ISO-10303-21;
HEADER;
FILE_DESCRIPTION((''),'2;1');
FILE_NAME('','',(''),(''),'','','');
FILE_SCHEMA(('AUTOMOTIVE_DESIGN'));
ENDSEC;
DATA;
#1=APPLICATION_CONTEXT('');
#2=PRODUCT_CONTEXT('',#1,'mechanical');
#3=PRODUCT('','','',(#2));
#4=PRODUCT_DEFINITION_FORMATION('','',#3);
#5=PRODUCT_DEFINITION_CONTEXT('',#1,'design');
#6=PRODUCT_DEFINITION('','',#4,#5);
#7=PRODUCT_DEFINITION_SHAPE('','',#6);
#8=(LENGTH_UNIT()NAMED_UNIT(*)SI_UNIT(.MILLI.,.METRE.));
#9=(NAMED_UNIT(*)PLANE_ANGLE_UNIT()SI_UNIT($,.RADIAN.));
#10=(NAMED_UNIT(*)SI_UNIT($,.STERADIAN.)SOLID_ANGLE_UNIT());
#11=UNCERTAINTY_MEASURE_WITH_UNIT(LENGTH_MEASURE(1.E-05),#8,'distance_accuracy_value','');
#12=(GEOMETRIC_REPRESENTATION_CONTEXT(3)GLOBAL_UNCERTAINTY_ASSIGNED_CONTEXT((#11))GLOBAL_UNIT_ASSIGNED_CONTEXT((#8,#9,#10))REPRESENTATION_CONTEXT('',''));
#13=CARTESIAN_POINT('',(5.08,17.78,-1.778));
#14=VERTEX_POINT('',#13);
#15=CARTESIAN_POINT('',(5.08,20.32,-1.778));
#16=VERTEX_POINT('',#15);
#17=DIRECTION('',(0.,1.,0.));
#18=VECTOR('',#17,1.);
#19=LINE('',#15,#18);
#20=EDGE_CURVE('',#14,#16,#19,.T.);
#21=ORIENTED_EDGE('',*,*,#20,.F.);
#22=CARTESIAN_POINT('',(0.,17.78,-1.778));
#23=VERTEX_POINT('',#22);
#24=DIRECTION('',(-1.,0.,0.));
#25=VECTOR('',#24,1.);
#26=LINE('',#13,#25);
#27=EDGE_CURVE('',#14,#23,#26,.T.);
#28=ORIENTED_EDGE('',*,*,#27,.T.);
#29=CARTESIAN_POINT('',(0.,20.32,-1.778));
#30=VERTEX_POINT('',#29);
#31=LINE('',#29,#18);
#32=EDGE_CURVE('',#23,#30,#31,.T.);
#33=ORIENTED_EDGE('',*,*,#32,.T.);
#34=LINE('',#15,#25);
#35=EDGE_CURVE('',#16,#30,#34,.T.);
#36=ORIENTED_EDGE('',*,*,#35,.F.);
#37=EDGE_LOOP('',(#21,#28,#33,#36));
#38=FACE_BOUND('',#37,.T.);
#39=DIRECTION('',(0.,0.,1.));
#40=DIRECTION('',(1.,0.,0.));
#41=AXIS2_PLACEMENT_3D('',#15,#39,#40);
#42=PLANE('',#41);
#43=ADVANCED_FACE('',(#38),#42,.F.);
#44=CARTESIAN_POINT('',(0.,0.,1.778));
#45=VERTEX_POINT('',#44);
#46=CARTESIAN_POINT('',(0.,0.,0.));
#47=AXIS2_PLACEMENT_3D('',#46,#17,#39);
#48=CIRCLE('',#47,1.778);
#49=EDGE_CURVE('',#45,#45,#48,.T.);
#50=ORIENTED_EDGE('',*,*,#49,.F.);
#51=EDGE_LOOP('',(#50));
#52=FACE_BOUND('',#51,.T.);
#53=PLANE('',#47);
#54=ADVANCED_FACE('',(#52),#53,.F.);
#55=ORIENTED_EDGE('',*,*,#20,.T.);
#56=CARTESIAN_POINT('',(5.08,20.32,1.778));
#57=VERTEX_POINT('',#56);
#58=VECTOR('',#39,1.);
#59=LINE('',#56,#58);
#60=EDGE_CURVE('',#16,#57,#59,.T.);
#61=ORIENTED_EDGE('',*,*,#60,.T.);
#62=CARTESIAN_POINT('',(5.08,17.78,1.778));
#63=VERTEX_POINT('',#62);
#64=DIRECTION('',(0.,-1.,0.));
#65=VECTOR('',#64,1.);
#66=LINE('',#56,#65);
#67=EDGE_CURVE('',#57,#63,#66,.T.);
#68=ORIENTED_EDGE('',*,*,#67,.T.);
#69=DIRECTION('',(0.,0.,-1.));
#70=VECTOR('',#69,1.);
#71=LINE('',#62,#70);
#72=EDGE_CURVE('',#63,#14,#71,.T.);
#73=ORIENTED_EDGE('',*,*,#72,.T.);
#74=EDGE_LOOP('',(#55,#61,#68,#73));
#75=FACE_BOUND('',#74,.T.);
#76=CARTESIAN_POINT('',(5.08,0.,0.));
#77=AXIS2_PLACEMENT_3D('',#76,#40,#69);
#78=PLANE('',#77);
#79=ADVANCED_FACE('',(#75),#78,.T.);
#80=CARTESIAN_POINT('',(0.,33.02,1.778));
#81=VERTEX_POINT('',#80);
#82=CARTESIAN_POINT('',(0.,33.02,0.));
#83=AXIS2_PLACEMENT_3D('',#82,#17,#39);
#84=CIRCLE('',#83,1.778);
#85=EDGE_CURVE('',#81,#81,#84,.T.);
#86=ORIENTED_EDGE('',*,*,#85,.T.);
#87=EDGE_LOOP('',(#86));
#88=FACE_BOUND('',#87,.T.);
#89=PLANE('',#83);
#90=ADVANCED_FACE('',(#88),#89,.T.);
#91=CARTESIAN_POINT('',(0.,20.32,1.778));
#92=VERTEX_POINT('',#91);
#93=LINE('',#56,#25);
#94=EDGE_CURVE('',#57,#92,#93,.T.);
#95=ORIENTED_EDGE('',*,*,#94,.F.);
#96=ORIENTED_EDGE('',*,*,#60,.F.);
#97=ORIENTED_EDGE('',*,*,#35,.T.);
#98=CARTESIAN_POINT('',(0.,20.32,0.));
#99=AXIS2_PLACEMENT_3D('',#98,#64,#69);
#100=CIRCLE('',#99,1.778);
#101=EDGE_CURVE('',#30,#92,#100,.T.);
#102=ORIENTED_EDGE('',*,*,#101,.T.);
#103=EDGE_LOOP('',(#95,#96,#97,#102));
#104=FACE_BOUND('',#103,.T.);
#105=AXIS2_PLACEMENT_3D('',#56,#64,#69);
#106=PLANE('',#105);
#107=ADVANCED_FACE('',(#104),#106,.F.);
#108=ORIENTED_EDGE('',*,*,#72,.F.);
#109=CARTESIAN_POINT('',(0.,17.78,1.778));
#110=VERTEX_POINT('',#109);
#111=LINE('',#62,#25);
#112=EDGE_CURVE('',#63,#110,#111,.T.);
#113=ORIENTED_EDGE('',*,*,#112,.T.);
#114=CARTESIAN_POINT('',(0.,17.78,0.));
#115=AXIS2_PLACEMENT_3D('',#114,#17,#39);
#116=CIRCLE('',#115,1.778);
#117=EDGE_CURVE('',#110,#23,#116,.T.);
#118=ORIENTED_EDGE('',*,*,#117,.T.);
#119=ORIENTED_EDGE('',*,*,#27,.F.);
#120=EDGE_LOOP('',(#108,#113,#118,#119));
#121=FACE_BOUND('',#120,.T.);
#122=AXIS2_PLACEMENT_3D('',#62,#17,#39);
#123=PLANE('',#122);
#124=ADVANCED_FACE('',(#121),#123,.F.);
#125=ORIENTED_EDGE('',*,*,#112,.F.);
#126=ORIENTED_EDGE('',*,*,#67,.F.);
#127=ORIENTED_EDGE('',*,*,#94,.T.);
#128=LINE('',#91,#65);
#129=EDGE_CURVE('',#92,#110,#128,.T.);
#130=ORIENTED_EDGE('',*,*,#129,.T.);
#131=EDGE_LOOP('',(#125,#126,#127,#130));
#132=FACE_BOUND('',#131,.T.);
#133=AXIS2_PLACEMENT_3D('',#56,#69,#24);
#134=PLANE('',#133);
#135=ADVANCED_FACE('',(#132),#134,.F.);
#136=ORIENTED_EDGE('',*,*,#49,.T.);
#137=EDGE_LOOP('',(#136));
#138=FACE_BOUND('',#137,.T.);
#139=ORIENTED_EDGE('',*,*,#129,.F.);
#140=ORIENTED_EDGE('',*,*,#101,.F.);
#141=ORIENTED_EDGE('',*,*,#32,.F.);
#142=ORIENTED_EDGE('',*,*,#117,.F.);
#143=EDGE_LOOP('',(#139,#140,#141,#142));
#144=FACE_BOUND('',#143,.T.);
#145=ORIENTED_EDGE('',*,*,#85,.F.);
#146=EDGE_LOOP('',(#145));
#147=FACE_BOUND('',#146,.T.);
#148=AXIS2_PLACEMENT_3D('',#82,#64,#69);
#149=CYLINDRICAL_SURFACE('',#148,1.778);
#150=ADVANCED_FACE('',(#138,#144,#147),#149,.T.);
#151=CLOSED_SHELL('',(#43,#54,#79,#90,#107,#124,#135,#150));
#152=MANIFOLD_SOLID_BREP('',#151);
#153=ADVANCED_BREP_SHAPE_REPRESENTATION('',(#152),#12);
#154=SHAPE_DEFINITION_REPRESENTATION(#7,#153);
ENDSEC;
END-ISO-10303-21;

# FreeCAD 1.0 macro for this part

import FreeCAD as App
import Part
import Sketcher
Q = App.Units.Quantity


def add_polygon(sketch, points):
    """Adds a closed chain of lines whose ends are joined by coincident constraints."""
    first, n = sketch.GeometryCount, len(points)
    for a, b in zip(points, points[1:] + points[:1]):
        sketch.addGeometry(Part.LineSegment(App.Vector(*a, 0), App.Vector(*b, 0)), False)
    for i in range(n):
        sketch.addConstraint(Sketcher.Constraint("Coincident", first + i, 2, first + (i + 1) % n, 1))

doc = App.newDocument("Part")
body = doc.addObject("PartDesign::Body", "Body")

sketch1 = body.newObject("Sketcher::SketchObject", "Sketch")
sketch1.AttachmentSupport = (doc.getObject("XZ_Plane"), [""])
sketch1.MapMode = "FlatFace"
sketch1.addGeometry(Part.Circle(App.Vector(0, 0, 0), App.Vector(0, 0, 1), 1.8), False)
sketch1.addConstraint(Sketcher.Constraint("Coincident", 0, 3, -1, 1))
sketch1.addConstraint(Sketcher.Constraint("Diameter", 0, Q("0.14 in")))
pad1 = body.newObject("PartDesign::Pad", "Pad")
pad1.Profile = sketch1
pad1.Length = Q("1.3 in")
pad1.Reversed = True

sketch2 = body.newObject("Sketcher::SketchObject", "Sketch001")
sketch2.AttachmentSupport = (doc.getObject("YZ_Plane"), [""])
sketch2.MapMode = "FlatFace"
add_polygon(sketch2, [(20.3, 1.8), (17.8, 1.8), (17.8, -1.8), (20.3, -1.8)])
sketch2.addConstraint(Sketcher.Constraint("Horizontal", 0))
sketch2.addConstraint(Sketcher.Constraint("Vertical", 1))
sketch2.addConstraint(Sketcher.Constraint("Horizontal", 2))
sketch2.addConstraint(Sketcher.Constraint("Vertical", 3))
sketch2.addConstraint(Sketcher.Constraint("DistanceX", 0, 2, 0, 1, Q("0.1 in")))
sketch2.addConstraint(Sketcher.Constraint("DistanceY", 1, 2, 1, 1, Q("0.14 in")))
sketch2.addConstraint(Sketcher.Constraint("DistanceX", -1, 1, 0, 2, Q("0.7 in")))
sketch2.addConstraint(Sketcher.Constraint("DistanceY", -1, 1, 0, 2, Q("0.07 in")))
pad2 = body.newObject("PartDesign::Pad", "Pad001")
pad2.Profile = sketch2
pad2.Length = Q("0.2 in")

doc.recompute()
